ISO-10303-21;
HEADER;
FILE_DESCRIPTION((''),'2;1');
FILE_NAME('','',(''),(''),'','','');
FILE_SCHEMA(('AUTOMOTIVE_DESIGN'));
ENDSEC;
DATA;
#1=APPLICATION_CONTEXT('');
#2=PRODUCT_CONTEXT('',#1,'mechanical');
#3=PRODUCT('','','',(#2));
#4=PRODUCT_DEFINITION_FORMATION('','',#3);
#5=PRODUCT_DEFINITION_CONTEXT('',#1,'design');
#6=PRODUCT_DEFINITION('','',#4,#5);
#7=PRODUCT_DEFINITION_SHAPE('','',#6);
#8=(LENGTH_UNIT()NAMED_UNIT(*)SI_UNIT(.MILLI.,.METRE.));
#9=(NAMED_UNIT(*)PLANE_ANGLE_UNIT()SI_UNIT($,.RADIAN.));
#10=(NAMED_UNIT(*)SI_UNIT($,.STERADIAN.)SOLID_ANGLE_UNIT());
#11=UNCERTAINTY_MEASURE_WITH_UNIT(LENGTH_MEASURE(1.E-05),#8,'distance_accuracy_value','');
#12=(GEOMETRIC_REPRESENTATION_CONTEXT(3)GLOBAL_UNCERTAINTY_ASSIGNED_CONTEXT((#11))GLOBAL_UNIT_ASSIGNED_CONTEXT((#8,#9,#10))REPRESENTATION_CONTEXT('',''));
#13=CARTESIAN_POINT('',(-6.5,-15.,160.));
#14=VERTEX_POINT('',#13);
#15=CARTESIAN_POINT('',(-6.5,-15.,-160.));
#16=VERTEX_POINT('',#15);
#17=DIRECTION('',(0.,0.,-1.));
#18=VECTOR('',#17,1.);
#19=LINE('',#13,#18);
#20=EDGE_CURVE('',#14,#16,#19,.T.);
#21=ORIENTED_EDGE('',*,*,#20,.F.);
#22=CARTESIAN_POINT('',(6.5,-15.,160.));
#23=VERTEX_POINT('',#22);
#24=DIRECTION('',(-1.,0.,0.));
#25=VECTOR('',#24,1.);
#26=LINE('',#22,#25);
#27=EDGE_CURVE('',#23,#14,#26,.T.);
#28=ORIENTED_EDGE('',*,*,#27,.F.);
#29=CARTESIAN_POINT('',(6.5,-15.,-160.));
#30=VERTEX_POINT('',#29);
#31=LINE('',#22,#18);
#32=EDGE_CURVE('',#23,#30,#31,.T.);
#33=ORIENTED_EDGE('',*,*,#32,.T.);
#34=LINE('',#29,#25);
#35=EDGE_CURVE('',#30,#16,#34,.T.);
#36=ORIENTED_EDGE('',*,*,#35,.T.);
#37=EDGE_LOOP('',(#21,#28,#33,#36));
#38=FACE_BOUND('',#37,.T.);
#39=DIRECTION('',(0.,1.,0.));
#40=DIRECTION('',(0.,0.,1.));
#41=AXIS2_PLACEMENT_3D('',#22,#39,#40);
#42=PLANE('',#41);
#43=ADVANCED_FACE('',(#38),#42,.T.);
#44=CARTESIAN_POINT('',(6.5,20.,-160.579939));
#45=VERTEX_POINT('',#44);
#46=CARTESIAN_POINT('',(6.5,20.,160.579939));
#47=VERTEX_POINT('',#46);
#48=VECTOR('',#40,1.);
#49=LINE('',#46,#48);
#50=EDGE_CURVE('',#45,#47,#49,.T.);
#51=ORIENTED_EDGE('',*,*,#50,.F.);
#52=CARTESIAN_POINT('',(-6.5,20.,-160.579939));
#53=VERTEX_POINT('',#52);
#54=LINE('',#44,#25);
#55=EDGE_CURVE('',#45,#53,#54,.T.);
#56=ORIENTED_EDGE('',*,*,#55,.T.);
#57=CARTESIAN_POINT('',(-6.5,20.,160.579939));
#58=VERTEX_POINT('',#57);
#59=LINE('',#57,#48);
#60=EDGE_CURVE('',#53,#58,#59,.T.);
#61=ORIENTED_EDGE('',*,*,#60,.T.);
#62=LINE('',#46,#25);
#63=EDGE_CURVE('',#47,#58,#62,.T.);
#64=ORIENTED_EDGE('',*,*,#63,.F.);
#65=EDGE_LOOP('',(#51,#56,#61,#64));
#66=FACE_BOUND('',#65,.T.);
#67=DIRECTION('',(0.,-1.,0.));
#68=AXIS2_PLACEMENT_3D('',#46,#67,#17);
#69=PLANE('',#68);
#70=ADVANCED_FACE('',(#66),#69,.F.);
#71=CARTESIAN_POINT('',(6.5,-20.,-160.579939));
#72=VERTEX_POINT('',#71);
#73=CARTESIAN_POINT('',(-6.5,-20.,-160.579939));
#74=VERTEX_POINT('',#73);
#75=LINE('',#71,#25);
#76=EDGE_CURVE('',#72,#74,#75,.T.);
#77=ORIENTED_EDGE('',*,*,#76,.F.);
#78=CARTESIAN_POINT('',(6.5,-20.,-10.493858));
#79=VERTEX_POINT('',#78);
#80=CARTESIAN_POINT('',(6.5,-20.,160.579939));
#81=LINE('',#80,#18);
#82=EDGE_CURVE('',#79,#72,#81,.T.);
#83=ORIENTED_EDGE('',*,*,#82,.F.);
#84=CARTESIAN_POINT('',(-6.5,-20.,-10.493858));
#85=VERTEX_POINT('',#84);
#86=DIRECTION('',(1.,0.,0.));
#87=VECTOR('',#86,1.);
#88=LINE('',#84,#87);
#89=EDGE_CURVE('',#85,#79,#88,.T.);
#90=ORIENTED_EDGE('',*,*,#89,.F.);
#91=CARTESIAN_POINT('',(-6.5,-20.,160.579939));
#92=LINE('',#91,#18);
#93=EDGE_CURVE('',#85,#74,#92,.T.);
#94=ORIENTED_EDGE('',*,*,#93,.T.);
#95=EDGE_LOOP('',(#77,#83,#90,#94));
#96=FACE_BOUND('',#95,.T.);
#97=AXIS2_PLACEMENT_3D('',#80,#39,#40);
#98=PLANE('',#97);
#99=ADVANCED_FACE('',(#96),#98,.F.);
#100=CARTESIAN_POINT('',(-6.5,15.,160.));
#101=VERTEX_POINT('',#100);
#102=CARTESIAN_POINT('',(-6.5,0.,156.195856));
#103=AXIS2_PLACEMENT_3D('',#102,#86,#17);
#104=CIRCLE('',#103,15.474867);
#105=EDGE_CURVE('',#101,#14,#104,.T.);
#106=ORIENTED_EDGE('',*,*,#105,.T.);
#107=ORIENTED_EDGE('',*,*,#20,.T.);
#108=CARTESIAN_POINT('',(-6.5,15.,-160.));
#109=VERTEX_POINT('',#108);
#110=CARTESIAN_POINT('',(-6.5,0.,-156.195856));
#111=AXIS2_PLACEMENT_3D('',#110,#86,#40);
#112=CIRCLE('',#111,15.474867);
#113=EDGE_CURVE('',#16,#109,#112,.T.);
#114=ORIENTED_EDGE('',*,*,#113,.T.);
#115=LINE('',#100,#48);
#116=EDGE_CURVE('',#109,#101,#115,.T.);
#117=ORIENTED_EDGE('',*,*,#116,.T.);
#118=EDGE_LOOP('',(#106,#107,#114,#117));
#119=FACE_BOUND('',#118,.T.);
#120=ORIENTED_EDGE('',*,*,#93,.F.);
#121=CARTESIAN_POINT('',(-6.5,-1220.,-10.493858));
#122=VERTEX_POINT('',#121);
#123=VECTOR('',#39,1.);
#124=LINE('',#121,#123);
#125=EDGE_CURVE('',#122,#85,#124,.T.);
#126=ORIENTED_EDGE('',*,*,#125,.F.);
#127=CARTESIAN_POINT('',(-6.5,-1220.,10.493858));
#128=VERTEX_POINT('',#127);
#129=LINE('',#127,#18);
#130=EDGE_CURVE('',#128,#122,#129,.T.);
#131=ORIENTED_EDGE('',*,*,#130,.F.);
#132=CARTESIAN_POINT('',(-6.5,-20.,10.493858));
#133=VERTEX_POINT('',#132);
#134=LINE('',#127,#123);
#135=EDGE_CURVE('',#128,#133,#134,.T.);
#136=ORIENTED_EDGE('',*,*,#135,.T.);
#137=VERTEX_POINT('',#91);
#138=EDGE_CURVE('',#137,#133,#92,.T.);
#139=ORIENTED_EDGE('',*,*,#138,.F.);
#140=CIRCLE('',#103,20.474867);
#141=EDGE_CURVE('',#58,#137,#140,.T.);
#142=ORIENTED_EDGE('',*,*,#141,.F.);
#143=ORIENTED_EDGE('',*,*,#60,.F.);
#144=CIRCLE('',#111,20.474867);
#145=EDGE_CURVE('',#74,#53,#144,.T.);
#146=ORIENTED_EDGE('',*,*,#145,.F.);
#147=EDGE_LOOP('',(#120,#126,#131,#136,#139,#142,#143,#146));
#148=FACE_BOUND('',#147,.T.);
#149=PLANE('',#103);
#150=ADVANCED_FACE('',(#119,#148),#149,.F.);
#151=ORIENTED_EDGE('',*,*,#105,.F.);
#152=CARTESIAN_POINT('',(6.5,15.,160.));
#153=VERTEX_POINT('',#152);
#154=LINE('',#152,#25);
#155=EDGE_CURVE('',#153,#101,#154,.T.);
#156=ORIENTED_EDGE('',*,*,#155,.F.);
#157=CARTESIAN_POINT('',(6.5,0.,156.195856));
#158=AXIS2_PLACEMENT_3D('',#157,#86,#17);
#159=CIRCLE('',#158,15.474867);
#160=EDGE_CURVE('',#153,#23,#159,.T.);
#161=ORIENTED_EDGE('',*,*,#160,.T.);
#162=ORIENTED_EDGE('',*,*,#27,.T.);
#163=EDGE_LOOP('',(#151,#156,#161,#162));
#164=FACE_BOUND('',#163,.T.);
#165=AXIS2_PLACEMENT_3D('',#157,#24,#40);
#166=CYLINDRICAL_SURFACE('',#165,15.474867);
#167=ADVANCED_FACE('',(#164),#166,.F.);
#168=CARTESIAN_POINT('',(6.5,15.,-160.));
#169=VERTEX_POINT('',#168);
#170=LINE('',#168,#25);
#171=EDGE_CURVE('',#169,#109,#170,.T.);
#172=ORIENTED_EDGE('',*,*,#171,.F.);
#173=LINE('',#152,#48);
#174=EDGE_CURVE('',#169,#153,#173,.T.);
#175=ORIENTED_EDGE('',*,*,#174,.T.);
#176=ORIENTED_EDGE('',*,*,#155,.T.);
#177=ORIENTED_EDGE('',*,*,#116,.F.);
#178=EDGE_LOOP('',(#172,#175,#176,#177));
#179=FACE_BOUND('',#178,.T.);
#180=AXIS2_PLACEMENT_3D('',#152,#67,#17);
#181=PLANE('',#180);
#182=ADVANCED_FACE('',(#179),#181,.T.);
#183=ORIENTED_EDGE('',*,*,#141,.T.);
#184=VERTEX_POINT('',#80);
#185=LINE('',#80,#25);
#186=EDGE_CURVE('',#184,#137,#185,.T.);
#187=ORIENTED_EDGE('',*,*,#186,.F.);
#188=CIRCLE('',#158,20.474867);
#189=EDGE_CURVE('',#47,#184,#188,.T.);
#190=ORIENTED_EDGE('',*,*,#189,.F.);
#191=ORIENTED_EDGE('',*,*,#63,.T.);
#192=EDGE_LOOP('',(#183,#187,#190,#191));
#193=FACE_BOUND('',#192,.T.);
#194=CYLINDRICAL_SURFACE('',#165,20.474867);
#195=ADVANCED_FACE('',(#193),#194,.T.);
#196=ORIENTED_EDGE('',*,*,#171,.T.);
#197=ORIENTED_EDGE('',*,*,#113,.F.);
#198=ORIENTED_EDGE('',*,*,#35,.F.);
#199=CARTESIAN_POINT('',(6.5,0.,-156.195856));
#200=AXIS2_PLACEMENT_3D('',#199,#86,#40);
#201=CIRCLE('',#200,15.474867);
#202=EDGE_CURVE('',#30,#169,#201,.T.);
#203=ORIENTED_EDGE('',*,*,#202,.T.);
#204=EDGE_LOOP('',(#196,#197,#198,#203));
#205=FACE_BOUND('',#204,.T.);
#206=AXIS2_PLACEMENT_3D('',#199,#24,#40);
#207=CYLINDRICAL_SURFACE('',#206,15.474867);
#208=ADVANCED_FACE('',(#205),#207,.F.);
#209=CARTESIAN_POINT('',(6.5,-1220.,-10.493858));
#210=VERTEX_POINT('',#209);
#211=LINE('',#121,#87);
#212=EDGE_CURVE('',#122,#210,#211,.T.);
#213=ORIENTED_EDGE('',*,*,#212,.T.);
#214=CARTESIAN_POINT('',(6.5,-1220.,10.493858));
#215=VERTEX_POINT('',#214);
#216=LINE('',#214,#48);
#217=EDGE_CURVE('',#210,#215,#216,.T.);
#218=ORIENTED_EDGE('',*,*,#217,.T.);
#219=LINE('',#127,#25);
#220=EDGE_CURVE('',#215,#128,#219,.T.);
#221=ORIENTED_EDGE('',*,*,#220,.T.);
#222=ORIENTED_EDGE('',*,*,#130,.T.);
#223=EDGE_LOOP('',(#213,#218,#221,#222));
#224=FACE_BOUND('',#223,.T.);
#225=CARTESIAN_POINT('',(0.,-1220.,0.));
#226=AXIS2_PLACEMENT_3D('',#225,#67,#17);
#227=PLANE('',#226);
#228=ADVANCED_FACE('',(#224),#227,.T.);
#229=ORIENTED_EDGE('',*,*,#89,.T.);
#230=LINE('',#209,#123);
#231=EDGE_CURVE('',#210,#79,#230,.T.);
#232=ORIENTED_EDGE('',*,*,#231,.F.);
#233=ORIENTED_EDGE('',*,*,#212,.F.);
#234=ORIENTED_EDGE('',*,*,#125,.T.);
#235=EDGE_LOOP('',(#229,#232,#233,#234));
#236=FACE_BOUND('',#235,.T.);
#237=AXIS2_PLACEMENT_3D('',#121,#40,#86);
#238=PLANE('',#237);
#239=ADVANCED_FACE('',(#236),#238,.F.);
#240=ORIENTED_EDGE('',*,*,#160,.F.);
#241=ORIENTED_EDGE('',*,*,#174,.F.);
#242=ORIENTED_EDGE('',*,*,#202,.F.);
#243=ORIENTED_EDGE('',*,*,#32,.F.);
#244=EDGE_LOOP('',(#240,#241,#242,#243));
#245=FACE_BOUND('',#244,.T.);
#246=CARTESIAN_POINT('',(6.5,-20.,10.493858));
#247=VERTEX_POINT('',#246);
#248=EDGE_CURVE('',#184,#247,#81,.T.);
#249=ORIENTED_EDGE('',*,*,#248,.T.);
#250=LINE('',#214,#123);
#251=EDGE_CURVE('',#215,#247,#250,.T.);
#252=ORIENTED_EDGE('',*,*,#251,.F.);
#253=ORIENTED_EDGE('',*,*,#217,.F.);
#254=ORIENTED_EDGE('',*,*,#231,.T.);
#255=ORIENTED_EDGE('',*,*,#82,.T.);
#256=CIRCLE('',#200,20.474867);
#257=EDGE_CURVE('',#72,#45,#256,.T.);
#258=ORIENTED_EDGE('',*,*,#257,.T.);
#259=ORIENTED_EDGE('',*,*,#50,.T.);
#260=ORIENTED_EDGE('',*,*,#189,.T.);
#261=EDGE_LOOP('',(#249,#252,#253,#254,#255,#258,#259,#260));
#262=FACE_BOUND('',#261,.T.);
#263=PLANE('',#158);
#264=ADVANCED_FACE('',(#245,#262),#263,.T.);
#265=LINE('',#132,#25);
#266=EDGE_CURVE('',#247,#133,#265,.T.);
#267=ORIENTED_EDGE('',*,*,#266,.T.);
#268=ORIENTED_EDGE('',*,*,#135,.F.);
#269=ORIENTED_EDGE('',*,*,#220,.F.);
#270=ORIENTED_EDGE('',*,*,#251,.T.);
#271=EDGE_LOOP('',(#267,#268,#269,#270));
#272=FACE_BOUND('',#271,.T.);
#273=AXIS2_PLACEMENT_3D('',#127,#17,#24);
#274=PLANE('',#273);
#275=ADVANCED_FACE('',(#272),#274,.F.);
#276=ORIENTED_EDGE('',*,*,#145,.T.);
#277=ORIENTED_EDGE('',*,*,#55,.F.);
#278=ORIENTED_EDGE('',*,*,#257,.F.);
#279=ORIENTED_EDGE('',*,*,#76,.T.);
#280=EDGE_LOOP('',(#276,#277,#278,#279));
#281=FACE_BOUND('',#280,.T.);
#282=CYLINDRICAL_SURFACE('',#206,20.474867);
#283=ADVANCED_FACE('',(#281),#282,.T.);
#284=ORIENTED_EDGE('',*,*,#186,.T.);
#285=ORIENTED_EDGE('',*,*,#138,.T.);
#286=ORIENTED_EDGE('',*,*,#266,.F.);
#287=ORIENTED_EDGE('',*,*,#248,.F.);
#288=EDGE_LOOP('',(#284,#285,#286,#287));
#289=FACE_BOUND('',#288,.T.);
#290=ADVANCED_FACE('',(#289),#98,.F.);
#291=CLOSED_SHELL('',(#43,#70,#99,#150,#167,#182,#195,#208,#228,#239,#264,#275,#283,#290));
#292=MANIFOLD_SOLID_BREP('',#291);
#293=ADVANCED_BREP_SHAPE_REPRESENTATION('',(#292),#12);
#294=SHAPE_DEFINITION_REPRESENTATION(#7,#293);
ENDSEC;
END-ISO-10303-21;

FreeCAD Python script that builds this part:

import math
import FreeCAD as App
import Part
import Sketcher

V = App.Vector
Q = App.Units.Quantity

doc = App.newDocument("Part")
body = doc.addObject("PartDesign::Body", "Body")

sketch1 = doc.addObject("Sketcher::SketchObject", "Sketch")
body.addObject(sketch1)
sketch1.AttachmentSupport = (doc.YZ_Plane, [""])
sketch1.MapMode = "FlatFace"
sketch1.addGeometry([
    Part.LineSegment(V(-20, 160.579939, 0), V(-20, -160.579939, 0)),
    Part.ArcOfCircle(Part.Circle(V(0, -156.195856, 0), V(0, 0, 1), 20.474867), math.radians(-167.636082), math.radians(-12.363918)),
    Part.LineSegment(V(20, -160.579939, 0), V(20, 160.579939, 0)),
    Part.ArcOfCircle(Part.Circle(V(0, 156.195856, 0), V(0, 0, 1), 20.474867), math.radians(12.363918), math.radians(167.636082)),
    Part.ArcOfCircle(Part.Circle(V(0, 156.195856, 0), V(0, 0, 1), 15.474867), math.radians(14.230728), math.radians(165.769272)),
    Part.LineSegment(V(15, 160, 0), V(15, -160, 0)),
    Part.ArcOfCircle(Part.Circle(V(0, -156.195856, 0), V(0, 0, 1), 15.474867), math.radians(-165.769272), math.radians(-14.230728)),
    Part.LineSegment(V(-15, -160, 0), V(-15, 160, 0)),
], False)
sketch1.addConstraint([
    Sketcher.Constraint("Coincident", 0, 2, 1, 1),
    Sketcher.Constraint("Coincident", 1, 2, 2, 1),
    Sketcher.Constraint("Coincident", 2, 2, 3, 1),
    Sketcher.Constraint("Coincident", 3, 2, 0, 1),
    Sketcher.Constraint("Coincident", 4, 1, 5, 1),
    Sketcher.Constraint("Coincident", 5, 2, 6, 2),
    Sketcher.Constraint("Coincident", 6, 1, 7, 1),
    Sketcher.Constraint("Coincident", 7, 2, 4, 2),
    Sketcher.Constraint("Vertical", 0),
    Sketcher.Constraint("Vertical", 2),
    Sketcher.Constraint("Vertical", 5),
    Sketcher.Constraint("Vertical", 7),
    Sketcher.Constraint("Coincident", 4, 3, 3, 3),
    Sketcher.Constraint("Coincident", 6, 3, 1, 3),
    Sketcher.Constraint("Equal", 1, 3),
    Sketcher.Constraint("Equal", 4, 6),
    Sketcher.Constraint("Symmetric", 1, 3, 3, 3, -1, 1),
    Sketcher.Constraint("Symmetric", 0, 2, 1, 2, -2),
    Sketcher.Constraint("Horizontal", 5, 2, 6, 1),
    Sketcher.Constraint("DistanceY", 5, 2, 5, 1, Q("320 mm")),
    Sketcher.Constraint("DistanceX", 0, 2, -1, 1, Q("20 mm")),
    Sketcher.Constraint("DistanceX", -1, 1, 4, 1, Q("15 mm")),
    Sketcher.Constraint("Radius", 1, Q("20.474867 mm")),
    Sketcher.Constraint("Radius", 4, Q("15.474867 mm")),
])
pad1 = doc.addObject("PartDesign::Pad", "Pad")
body.addObject(pad1)
pad1.Profile = sketch1
pad1.Length = 13
pad1.Midplane = True

sketch2 = doc.addObject("Sketcher::SketchObject", "Sketch001")
body.addObject(sketch2)
sketch2.AttachmentSupport = (doc.XZ_Plane, [""])
sketch2.MapMode = "FlatFace"
sketch2.AttachmentOffset = App.Placement(V(0, 0, 20), App.Rotation())
sketch2.addGeometry([
    Part.LineSegment(V(-6.5, 10.493858, 0), V(-6.5, -10.493858, 0)),
    Part.LineSegment(V(-6.5, -10.493858, 0), V(6.5, -10.493858, 0)),
    Part.LineSegment(V(6.5, -10.493858, 0), V(6.5, 10.493858, 0)),
    Part.LineSegment(V(6.5, 10.493858, 0), V(-6.5, 10.493858, 0)),
], False)
sketch2.addConstraint([
    Sketcher.Constraint("Coincident", 0, 2, 1, 1),
    Sketcher.Constraint("Coincident", 1, 2, 2, 1),
    Sketcher.Constraint("Coincident", 2, 2, 3, 1),
    Sketcher.Constraint("Coincident", 3, 2, 0, 1),
    Sketcher.Constraint("Vertical", 0),
    Sketcher.Constraint("Horizontal", 1),
    Sketcher.Constraint("Vertical", 2),
    Sketcher.Constraint("Horizontal", 3),
    Sketcher.Constraint("Symmetric", 0, 2, 2, 2, -1, 1),
    Sketcher.Constraint("DistanceX", 1, 1, 1, 2, Q("13 mm")),
    Sketcher.Constraint("DistanceY", 0, 2, 0, 1, Q("20.987716 mm")),
])
pad2 = doc.addObject("PartDesign::Pad", "Pad001")
body.addObject(pad2)
pad2.Profile = sketch2
pad2.Length = 1200

doc.recompute()
